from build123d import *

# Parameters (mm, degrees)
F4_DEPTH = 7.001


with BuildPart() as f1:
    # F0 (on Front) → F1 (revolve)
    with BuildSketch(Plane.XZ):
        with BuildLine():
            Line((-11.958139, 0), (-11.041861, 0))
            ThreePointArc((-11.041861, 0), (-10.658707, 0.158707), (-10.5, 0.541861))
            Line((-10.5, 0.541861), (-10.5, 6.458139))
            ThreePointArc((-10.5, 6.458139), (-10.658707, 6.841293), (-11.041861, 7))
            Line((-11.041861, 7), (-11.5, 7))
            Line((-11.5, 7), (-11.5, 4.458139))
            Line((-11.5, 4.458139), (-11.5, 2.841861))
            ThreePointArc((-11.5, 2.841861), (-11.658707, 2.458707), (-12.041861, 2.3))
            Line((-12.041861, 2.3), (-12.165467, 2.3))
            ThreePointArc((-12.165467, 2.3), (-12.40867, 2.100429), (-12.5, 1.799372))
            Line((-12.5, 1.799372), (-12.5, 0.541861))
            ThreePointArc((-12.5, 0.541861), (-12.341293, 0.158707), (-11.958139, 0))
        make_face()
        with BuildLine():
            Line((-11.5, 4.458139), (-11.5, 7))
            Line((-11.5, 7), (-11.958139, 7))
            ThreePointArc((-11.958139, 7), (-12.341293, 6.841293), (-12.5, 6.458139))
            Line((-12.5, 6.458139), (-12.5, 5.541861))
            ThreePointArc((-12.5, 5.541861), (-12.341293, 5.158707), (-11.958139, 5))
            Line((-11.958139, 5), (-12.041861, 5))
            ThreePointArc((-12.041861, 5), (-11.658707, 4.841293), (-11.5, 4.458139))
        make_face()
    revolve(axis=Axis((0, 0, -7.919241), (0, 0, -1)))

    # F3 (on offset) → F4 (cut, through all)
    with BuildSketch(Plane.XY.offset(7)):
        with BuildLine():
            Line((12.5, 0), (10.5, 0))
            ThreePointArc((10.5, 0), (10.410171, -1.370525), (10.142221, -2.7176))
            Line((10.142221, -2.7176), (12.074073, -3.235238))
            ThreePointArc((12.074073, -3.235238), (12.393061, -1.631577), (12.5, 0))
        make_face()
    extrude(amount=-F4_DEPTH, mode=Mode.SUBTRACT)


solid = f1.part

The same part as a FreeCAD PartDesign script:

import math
import FreeCAD as App
import Part
import Sketcher

V = App.Vector
Q = App.Units.Quantity

doc = App.newDocument("Part")
body = doc.addObject("PartDesign::Body", "Body")

# Sketch on XZ plane
sketch1 = body.newObject("Sketcher::SketchObject", "Sketch")
sketch1.AttachmentSupport = (doc.getObject("XZ_Plane"), [""])
sketch1.MapMode = "FlatFace"
sketch1.addGeometry([
    Part.LineSegment(V(-11.96, 0, 0), V(-11.04, 0, 0)),  # 0
    Part.ArcOfCircle(Part.Circle(V(-11.04, 0.54, 0), V(0, 0, 1), 0.54), math.radians(-90), math.radians(0)),  # 1
    Part.LineSegment(V(-10.5, 0.54, 0), V(-10.5, 6.46, 0)),  # 2
    Part.ArcOfCircle(Part.Circle(V(-11.04, 6.46, 0), V(0, 0, 1), 0.54), math.radians(0), math.radians(90)),  # 3
    Part.LineSegment(V(-11.04, 7, 0), V(-11.96, 7, 0)),  # 4
    Part.ArcOfCircle(Part.Circle(V(-11.96, 6.46, 0), V(0, 0, 1), 0.54), math.radians(90), math.radians(180)),  # 5
    Part.LineSegment(V(-12.5, 6.46, 0), V(-12.5, 5.54, 0)),  # 6
    Part.ArcOfCircle(Part.Circle(V(-11.96, 5.54, 0), V(0, 0, 1), 0.54), math.radians(180), math.radians(270)),  # 7
    Part.LineSegment(V(-11.96, 5, 0), V(-12.04, 5, 0)),  # 8
    Part.ArcOfCircle(Part.Circle(V(-12.04, 4.46, 0), V(0, 0, 1), 0.54), math.radians(0), math.radians(90)),  # 9
    Part.LineSegment(V(-11.5, 4.46, 0), V(-11.5, 2.84, 0)),  # 10
    Part.ArcOfCircle(Part.Circle(V(-12.04, 2.84, 0), V(0, 0, 1), 0.54), math.radians(-90), math.radians(0)),  # 11
    Part.LineSegment(V(-12.04, 2.3, 0), V(-12.17, 2.3, 0)),  # 12
    Part.ArcOfCircle(Part.Circle(V(-11.96, 1.8, 0), V(0, 0, 1), 0.54), math.radians(112), math.radians(180)),  # 13
    Part.LineSegment(V(-12.5, 1.8, 0), V(-12.5, 0.54, 0)),  # 14
    Part.ArcOfCircle(Part.Circle(V(-11.96, 0.54, 0), V(0, 0, 1), 0.54), math.radians(180), math.radians(270)),  # 15
], False)
sketch1.addConstraint([
    Sketcher.Constraint("Coincident", 0, 2, 1, 1),
    Sketcher.Constraint("Coincident", 1, 2, 2, 1),
    Sketcher.Constraint("Coincident", 2, 2, 3, 1),
    Sketcher.Constraint("Coincident", 3, 2, 4, 1),
    Sketcher.Constraint("Coincident", 4, 2, 5, 1),
    Sketcher.Constraint("Coincident", 5, 2, 6, 1),
    Sketcher.Constraint("Coincident", 6, 2, 7, 1),
    Sketcher.Constraint("Coincident", 7, 2, 8, 1),
    Sketcher.Constraint("Coincident", 8, 2, 9, 2),
    Sketcher.Constraint("Coincident", 9, 1, 10, 1),
    Sketcher.Constraint("Coincident", 10, 2, 11, 2),
    Sketcher.Constraint("Coincident", 11, 1, 12, 1),
    Sketcher.Constraint("Coincident", 12, 2, 13, 1),
    Sketcher.Constraint("Tangent", 13, 2, 14, 1),
    Sketcher.Constraint("Coincident", 14, 2, 15, 1),
    Sketcher.Constraint("Coincident", 15, 2, 0, 1),
    Sketcher.Constraint("Horizontal", 0),
    Sketcher.Constraint("Vertical", 2),
    Sketcher.Constraint("Horizontal", 4),
    Sketcher.Constraint("Vertical", 6),
    Sketcher.Constraint("Horizontal", 8),
    Sketcher.Constraint("Vertical", 10),
    Sketcher.Constraint("Horizontal", 12),
    Sketcher.Constraint("Vertical", 14),
    Sketcher.Constraint("Equal", 1, 3),
    Sketcher.Constraint("Equal", 3, 5),
    Sketcher.Constraint("Equal", 5, 7),
    Sketcher.Constraint("Equal", 7, 9),
    Sketcher.Constraint("Equal", 9, 11),
    Sketcher.Constraint("Equal", 11, 13),
    Sketcher.Constraint("Equal", 13, 15),
    Sketcher.Constraint("PointOnObject", 0, 2, -1),
    Sketcher.Constraint("Horizontal", 15, 3, 1, 2),
    Sketcher.Constraint("Horizontal", 5, 3, 2, 2),
    Sketcher.Constraint("Horizontal", 2, 2, 5, 2),
    Sketcher.Constraint("Horizontal", 7, 3, 6, 2),
    Sketcher.Constraint("Horizontal", 11, 3, 10, 2),
    Sketcher.Constraint("Horizontal", 1, 2, 14, 2),
    Sketcher.Constraint("Vertical", 7, 3, 13, 3),
    Sketcher.Constraint("Vertical", 3, 3, 0, 2),
    Sketcher.Constraint("Vertical", 0, 2, 3, 2),
    Sketcher.Constraint("Vertical", 15, 3, 4, 2),
    Sketcher.Constraint("Vertical", 4, 2, 7, 2),
    Sketcher.Constraint("Vertical", 11, 3, 8, 2),
    Sketcher.Constraint("Vertical", 8, 2, 11, 1),
    Sketcher.Constraint("Vertical", 7, 2, 15, 2),
    Sketcher.Constraint("Equal", 4, 6),
    Sketcher.Constraint("DistanceY", -1, 1, 3, 2, Q("7 mm")),
    Sketcher.Constraint("DistanceY", -1, 1, 7, 2, Q("5 mm")),
    Sketcher.Constraint("DistanceX", 9, 3, 3, 3, Q("1 mm")),
    Sketcher.Constraint("DistanceX", 1, 2, -1, 1, Q("10.5 mm")),
    Sketcher.Constraint("DistanceY", -1, 1, 11, 1, Q("2.3 mm")),
    Sketcher.Constraint("Radius", 1, Q("0.54186 mm")),
    Sketcher.Constraint("DistanceY", 14, 2, 14, 1, Q("1.257511 mm")),
    Sketcher.Constraint("DistanceY", 10, 2, 10, 1, Q("1.616278 mm")),
])
revolution = body.newObject("PartDesign::Revolution", "Revolution")
revolution.Profile = sketch1
revolution.ReferenceAxis = (sketch1, ["V_Axis"])
revolution.Angle = 360

# Sketch on XY plane
sketch2 = body.newObject("Sketcher::SketchObject", "Sketch001")
sketch2.AttachmentSupport = (doc.getObject("XY_Plane"), [""])
sketch2.MapMode = "FlatFace"
sketch2.AttachmentOffset = App.Placement(V(0, 0, 7), App.Rotation())
sketch2.addGeometry([
    Part.LineSegment(V(12.5, 0, 0), V(10.5, 0, 0)),
    Part.ArcOfCircle(Part.Circle(V(0, 0, 0), V(0, 0, 1), 10.5), math.radians(-15), math.radians(0)),
    Part.LineSegment(V(10.1, -2.7, 0), V(12.1, -3.2, 0)),
    Part.ArcOfCircle(Part.Circle(V(0, 0, 0), V(0, 0, 1), 12.5), math.radians(-15), math.radians(0)),
], False)
sketch2.addConstraint([
    Sketcher.Constraint("Coincident", 0, 2, 1, 2),
    Sketcher.Constraint("Coincident", 1, 1, 2, 1),
    Sketcher.Constraint("Coincident", 2, 2, 3, 1),
    Sketcher.Constraint("Coincident", 3, 2, 0, 1),
    Sketcher.Constraint("Horizontal", 0),
    Sketcher.Constraint("Coincident", 1, 3, -1, 1),
    Sketcher.Constraint("Coincident", 3, 3, 1, 3),
    Sketcher.Constraint("PointOnObject", 0, 2, -1),
    Sketcher.Constraint("DistanceX", 0, 2, 0, 1, Q("2 mm")),
    Sketcher.Constraint("Angle", 2, Q("-14.999995 deg")),
    Sketcher.Constraint("DistanceX", -1, 1, 0, 2, Q("10.5 mm")),
    Sketcher.Constraint("DistanceY", 1, 1, -1, 1, Q("2.7176 mm")),
])
pocket1 = body.newObject("PartDesign::Pocket", "Pocket")
pocket1.Profile = sketch2
pocket1.Type = "ThroughAll"

doc.recompute()
